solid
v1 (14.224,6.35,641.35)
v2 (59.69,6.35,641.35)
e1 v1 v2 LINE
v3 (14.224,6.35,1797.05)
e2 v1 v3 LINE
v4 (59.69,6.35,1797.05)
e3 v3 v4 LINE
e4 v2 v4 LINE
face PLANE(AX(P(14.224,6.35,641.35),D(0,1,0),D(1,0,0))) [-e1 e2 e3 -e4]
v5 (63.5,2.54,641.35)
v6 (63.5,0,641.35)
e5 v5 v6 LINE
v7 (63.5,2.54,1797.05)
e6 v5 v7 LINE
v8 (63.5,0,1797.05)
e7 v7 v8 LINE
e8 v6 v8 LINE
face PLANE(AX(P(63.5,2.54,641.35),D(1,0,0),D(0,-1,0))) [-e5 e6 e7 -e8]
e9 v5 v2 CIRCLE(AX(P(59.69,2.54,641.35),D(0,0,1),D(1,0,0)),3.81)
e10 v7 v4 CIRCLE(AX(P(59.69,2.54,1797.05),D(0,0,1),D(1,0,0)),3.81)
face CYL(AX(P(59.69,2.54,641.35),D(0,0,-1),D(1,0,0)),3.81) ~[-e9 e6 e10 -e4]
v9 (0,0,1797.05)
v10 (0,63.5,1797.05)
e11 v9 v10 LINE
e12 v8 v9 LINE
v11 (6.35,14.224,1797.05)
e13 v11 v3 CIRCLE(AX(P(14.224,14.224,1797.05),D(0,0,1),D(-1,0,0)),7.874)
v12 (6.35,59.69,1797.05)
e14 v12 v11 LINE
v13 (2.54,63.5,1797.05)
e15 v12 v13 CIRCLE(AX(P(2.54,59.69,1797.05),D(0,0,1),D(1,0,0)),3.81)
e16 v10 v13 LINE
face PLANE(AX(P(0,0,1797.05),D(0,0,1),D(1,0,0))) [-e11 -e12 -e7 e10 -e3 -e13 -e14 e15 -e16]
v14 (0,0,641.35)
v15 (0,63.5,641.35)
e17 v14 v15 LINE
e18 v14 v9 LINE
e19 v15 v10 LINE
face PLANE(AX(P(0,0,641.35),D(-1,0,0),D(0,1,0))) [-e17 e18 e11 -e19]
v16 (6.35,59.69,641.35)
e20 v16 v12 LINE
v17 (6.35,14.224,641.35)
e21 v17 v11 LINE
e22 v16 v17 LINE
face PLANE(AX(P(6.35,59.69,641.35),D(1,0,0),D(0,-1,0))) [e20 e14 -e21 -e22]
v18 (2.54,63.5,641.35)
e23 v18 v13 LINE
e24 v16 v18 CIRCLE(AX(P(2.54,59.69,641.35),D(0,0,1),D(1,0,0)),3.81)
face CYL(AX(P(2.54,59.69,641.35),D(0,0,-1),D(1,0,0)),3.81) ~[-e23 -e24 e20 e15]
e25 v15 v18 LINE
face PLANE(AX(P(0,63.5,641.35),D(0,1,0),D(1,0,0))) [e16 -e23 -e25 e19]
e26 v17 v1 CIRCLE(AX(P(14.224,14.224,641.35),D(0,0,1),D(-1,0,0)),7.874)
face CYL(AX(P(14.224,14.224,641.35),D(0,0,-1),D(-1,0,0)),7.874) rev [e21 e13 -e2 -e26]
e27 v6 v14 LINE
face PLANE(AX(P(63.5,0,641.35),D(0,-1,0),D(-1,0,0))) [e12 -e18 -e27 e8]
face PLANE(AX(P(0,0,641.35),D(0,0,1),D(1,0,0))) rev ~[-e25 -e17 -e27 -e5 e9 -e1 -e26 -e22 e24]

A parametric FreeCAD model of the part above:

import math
import FreeCAD as App
import Part
import Sketcher
Q = App.Units.Quantity

doc = App.newDocument("Part")
params = doc.addObject("Spreadsheet::Sheet", "Params")
for row, (alias, value) in enumerate([
    ("sketch1_radius", "0.15 in"),
    ("sketch1_radius2", "0.31 in"),
    ("sketch1_width", "2.5 in"),
    ("pad1_length", "45.5 in"),
], start=1):
    params.set(f"A{row}", alias)
    params.set(f"B{row}", "=" + value)
    params.setAlias(f"B{row}", alias)

body = doc.addObject("PartDesign::Body", "Body")

sketch1 = body.newObject("Sketcher::SketchObject", "Sketch")
sketch1.AttachmentSupport = (doc.getObject("XY_Plane"), [""])
sketch1.MapMode = "FlatFace"
sketch1.AttachmentOffset = App.Placement(App.Vector(0, 0, 25.25 * 25.4), App.Rotation())
sketch1.addGeometry([
    Part.LineSegment(App.Vector(0, 0, 0), App.Vector(63.5, 0, 0)),
    Part.LineSegment(App.Vector(63.5, 0, 0), App.Vector(63.5, 2.5, 0)),
    Part.ArcOfCircle(Part.Circle(App.Vector(59.7, 2.5, 0), App.Vector(0, 0, 1), 3.8), math.radians(0), math.radians(90)),
    Part.LineSegment(App.Vector(59.7, 6.3, 0), App.Vector(14.2, 6.3, 0)),
    Part.ArcOfCircle(Part.Circle(App.Vector(14.2, 14.2, 0), App.Vector(0, 0, 1), 7.9), math.radians(180), math.radians(270)),
    Part.LineSegment(App.Vector(6.3, 14.2, 0), App.Vector(6.3, 59.7, 0)),
    Part.ArcOfCircle(Part.Circle(App.Vector(2.5, 59.7, 0), App.Vector(0, 0, 1), 3.8), math.radians(0), math.radians(90)),
    Part.LineSegment(App.Vector(2.5, 63.5, 0), App.Vector(0, 63.5, 0)),
    Part.LineSegment(App.Vector(0, 63.5, 0), App.Vector(0, 0, 0)),
], False)
sketch1.addConstraint([
    Sketcher.Constraint("Coincident", 0, 2, 1, 1),
    Sketcher.Constraint("Tangent", 1, 2, 2, 1),
    Sketcher.Constraint("Tangent", 2, 2, 3, 1),
    Sketcher.Constraint("Tangent", 3, 2, 4, 2),
    Sketcher.Constraint("Tangent", 4, 1, 5, 1),
    Sketcher.Constraint("Tangent", 5, 2, 6, 1),
    Sketcher.Constraint("Tangent", 6, 2, 7, 1),
    Sketcher.Constraint("Coincident", 7, 2, 8, 1),
    Sketcher.Constraint("Coincident", 8, 2, 0, 1),
    Sketcher.Constraint("Horizontal", 0),
    Sketcher.Constraint("Vertical", 1),
    Sketcher.Constraint("Horizontal", 3),
    Sketcher.Constraint("Vertical", 5),
    Sketcher.Constraint("Horizontal", 7),
    Sketcher.Constraint("Vertical", 8),
    Sketcher.Constraint("Coincident", 8, 2, -1, 1),
    Sketcher.Constraint("Equal", 2, 6),
    Sketcher.Constraint("Equal", 7, 1),
    Sketcher.Constraint("Equal", 3, 5),
    Sketcher.Constraint("Radius", 2, Q("0.15 in")),
    Sketcher.Constraint("Radius", 4, Q("0.31 in")),
    Sketcher.Constraint("DistanceX", 0, 1, 0, 2, Q("2.5 in")),
    Sketcher.Constraint("DistanceY", -1, 1, 2, 2, Q("0.25 in")),
])
sketch1.setExpression("Constraints[19]", "Params.sketch1_radius")
sketch1.setExpression("Constraints[20]", "Params.sketch1_radius2")
sketch1.setExpression("Constraints[21]", "Params.sketch1_width")
pad1 = body.newObject("PartDesign::Pad", "Pad")
pad1.Profile = sketch1
pad1.setExpression("Length", "Params.pad1_length")

doc.recompute()
